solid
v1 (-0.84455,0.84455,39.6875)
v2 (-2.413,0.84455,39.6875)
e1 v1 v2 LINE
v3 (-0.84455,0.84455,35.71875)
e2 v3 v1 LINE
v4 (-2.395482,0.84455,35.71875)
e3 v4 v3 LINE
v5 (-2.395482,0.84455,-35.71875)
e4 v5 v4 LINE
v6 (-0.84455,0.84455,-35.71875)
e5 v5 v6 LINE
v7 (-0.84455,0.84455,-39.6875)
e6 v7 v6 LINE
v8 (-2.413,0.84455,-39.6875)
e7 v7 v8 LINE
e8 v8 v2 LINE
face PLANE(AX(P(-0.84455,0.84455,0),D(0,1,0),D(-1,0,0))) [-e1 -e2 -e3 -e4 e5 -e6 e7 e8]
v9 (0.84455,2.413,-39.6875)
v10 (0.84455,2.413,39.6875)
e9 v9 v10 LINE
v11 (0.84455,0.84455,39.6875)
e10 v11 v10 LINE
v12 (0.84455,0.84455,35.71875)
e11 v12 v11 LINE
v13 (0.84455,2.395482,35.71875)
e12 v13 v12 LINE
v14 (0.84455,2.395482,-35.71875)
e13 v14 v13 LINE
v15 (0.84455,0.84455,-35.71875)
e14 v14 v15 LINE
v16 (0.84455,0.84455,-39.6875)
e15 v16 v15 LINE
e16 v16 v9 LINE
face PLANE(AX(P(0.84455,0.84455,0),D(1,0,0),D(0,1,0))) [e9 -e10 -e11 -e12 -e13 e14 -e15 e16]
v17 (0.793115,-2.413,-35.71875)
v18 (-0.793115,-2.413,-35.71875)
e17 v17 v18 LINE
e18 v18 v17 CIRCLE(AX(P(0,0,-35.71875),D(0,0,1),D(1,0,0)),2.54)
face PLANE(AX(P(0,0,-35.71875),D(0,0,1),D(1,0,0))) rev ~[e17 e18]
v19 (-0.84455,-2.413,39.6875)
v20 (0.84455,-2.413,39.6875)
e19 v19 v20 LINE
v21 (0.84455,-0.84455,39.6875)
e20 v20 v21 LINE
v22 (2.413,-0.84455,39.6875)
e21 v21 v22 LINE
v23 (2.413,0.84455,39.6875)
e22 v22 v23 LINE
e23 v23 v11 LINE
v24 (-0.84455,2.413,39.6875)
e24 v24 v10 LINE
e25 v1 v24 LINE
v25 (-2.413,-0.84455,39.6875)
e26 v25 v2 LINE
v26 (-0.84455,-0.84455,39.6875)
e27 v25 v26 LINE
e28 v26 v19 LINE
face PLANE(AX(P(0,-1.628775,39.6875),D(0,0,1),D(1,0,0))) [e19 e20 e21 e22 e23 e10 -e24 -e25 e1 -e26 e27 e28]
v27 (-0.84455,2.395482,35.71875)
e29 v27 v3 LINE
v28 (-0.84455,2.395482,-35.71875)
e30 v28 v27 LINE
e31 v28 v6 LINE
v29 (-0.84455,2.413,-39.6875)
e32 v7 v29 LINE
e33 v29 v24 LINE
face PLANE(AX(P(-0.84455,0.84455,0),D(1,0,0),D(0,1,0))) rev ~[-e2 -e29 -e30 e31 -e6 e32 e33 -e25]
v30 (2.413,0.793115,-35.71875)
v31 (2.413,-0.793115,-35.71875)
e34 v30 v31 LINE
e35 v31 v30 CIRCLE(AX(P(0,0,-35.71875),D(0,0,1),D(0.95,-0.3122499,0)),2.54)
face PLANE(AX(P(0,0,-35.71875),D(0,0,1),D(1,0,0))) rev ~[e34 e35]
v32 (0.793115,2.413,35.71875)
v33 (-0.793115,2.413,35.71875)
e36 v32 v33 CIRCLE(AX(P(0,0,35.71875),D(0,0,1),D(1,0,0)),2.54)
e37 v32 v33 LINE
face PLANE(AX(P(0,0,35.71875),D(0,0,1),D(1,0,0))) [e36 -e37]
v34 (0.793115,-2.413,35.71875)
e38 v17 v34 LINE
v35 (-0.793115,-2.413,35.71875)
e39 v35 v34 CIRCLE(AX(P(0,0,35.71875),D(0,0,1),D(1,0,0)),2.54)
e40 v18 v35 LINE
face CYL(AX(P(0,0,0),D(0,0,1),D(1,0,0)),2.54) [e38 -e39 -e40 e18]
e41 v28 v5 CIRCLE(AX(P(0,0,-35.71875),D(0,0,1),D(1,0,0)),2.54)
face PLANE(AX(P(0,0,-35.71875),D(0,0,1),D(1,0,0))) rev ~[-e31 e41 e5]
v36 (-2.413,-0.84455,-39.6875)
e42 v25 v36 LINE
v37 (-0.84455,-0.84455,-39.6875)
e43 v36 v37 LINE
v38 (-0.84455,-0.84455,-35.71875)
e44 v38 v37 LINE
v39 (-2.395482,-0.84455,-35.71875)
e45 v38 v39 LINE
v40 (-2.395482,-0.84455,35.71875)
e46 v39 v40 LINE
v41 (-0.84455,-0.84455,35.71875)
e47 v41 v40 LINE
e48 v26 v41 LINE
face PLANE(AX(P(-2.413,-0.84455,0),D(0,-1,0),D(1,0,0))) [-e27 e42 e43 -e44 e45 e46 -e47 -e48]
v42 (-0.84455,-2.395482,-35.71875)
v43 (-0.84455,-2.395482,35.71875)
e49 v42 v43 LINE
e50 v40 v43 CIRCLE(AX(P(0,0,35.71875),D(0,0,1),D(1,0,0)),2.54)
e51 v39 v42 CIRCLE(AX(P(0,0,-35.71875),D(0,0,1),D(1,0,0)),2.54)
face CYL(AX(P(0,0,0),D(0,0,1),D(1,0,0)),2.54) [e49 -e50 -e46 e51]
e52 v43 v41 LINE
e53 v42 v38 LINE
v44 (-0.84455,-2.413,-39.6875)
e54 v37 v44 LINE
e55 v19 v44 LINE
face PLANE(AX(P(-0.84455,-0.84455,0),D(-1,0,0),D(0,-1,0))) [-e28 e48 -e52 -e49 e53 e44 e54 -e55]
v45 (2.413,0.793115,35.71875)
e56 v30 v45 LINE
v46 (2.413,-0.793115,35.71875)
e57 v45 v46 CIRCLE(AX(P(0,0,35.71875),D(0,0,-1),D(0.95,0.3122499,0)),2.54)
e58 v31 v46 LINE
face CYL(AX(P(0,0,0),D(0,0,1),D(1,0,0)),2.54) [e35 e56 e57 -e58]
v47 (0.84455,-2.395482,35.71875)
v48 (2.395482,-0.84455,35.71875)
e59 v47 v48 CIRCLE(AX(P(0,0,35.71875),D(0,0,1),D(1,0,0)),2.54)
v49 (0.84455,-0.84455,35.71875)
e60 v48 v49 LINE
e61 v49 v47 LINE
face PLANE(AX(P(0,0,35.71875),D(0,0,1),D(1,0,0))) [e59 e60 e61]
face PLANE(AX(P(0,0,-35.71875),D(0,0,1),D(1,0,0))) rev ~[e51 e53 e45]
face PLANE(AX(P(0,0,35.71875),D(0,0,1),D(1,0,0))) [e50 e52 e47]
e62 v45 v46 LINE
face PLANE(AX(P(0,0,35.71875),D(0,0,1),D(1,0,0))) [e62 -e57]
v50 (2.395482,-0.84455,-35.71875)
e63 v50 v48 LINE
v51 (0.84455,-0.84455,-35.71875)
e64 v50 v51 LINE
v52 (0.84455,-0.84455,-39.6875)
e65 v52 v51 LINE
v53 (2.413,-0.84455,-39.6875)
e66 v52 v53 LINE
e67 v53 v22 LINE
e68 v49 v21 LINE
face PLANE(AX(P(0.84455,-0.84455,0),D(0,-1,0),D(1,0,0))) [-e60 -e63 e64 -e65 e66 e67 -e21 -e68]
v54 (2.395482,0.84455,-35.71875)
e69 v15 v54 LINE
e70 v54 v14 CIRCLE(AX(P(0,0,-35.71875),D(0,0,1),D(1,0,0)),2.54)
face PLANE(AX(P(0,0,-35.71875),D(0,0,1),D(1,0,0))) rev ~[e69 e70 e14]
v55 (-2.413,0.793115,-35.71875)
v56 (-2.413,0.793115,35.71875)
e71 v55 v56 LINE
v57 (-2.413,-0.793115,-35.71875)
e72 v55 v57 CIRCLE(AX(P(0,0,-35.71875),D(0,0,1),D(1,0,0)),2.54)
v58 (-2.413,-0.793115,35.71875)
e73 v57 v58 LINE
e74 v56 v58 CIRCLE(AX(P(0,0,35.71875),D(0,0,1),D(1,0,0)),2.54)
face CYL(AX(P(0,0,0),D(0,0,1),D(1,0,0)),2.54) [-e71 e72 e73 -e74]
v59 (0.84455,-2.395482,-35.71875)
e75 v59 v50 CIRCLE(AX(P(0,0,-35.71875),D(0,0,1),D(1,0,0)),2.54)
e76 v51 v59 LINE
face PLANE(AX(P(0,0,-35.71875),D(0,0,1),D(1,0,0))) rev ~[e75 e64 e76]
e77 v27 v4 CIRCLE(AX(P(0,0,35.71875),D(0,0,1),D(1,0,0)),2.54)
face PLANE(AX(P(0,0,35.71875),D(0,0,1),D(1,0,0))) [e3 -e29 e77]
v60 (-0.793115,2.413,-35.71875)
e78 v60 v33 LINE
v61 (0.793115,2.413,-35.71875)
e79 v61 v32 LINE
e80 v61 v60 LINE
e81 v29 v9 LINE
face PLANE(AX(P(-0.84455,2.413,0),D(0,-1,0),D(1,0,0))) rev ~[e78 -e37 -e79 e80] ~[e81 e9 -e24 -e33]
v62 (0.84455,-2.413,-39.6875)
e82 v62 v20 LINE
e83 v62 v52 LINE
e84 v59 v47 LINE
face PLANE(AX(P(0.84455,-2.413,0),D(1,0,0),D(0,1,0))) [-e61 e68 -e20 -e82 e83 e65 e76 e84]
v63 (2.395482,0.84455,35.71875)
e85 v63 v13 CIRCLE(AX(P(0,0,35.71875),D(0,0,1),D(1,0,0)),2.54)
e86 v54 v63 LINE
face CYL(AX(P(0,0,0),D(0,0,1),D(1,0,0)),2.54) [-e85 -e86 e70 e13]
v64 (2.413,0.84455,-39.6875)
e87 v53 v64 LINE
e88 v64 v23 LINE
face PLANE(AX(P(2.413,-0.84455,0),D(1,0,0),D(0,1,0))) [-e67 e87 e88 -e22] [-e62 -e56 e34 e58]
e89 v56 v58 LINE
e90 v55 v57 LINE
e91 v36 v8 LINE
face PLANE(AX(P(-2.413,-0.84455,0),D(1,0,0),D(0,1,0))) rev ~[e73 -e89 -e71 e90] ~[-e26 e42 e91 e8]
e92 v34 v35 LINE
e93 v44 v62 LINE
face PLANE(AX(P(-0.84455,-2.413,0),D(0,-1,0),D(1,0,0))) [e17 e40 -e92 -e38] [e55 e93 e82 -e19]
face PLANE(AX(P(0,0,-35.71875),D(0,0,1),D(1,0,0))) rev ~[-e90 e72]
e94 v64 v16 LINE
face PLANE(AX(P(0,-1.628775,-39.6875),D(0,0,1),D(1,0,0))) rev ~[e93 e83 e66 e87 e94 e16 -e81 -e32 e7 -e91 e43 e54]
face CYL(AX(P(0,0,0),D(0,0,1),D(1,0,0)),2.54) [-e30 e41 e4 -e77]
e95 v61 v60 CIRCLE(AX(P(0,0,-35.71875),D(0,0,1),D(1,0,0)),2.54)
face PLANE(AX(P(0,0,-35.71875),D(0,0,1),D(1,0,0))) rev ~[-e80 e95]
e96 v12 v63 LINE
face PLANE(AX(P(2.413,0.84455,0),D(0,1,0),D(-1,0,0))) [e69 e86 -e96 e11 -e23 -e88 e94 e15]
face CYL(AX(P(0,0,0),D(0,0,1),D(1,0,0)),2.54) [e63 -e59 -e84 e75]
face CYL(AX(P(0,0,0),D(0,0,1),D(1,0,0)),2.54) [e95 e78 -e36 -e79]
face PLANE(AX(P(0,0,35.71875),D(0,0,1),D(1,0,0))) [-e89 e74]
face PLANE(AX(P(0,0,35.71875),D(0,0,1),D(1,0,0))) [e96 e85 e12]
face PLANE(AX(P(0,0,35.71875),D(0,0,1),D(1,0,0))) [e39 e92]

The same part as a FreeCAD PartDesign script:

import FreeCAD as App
import Part
import Sketcher
from FreeCAD import Vector
Q = App.Units.Quantity

doc = App.newDocument("Part")
body = doc.addObject("PartDesign::Body", "Body")

sketch1 = body.newObject("Sketcher::SketchObject", "Sketch")
sketch1.AttachmentSupport = (doc.getObject("XY_Plane"), [""])
sketch1.MapMode = "FlatFace"
sketch1.addGeometry([
    Part.LineSegment(Vector(-0.84455, -2.413, 0), Vector(0.84455, -2.413, 0)),
    Part.LineSegment(Vector(0.84455, -2.413, 0), Vector(0.84455, -0.84455, 0)),
    Part.LineSegment(Vector(0.84455, -0.84455, 0), Vector(2.413, -0.84455, 0)),
    Part.LineSegment(Vector(2.413, -0.84455, 0), Vector(2.413, 0.84455, 0)),
    Part.LineSegment(Vector(2.413, 0.84455, 0), Vector(0.84455, 0.84455, 0)),
    Part.LineSegment(Vector(0.84455, 0.84455, 0), Vector(0.84455, 2.413, 0)),
    Part.LineSegment(Vector(0.84455, 2.413, 0), Vector(-0.84455, 2.413, 0)),
    Part.LineSegment(Vector(-0.84455, 2.413, 0), Vector(-0.84455, 0.84455, 0)),
    Part.LineSegment(Vector(-0.84455, 0.84455, 0), Vector(-2.413, 0.84455, 0)),
    Part.LineSegment(Vector(-2.413, 0.84455, 0), Vector(-2.413, -0.84455, 0)),
    Part.LineSegment(Vector(-2.413, -0.84455, 0), Vector(-0.84455, -0.84455, 0)),
    Part.LineSegment(Vector(-0.84455, -0.84455, 0), Vector(-0.84455, -2.413, 0)),
], False)
sketch1.addConstraint([
    Sketcher.Constraint("Coincident", 0, 2, 1, 1),
    Sketcher.Constraint("Coincident", 1, 2, 2, 1),
    Sketcher.Constraint("Coincident", 2, 2, 3, 1),
    Sketcher.Constraint("Coincident", 3, 2, 4, 1),
    Sketcher.Constraint("Coincident", 4, 2, 5, 1),
    Sketcher.Constraint("Coincident", 5, 2, 6, 1),
    Sketcher.Constraint("Coincident", 6, 2, 7, 1),
    Sketcher.Constraint("Coincident", 7, 2, 8, 1),
    Sketcher.Constraint("Coincident", 8, 2, 9, 1),
    Sketcher.Constraint("Coincident", 9, 2, 10, 1),
    Sketcher.Constraint("Coincident", 10, 2, 11, 1),
    Sketcher.Constraint("Coincident", 11, 2, 0, 1),
    Sketcher.Constraint("Horizontal", 0),
    Sketcher.Constraint("Vertical", 1),
    Sketcher.Constraint("Horizontal", 2),
    Sketcher.Constraint("Vertical", 3),
    Sketcher.Constraint("Horizontal", 4),
    Sketcher.Constraint("Vertical", 5),
    Sketcher.Constraint("Horizontal", 6),
    Sketcher.Constraint("Vertical", 7),
    Sketcher.Constraint("Horizontal", 8),
    Sketcher.Constraint("Vertical", 9),
    Sketcher.Constraint("Horizontal", 10),
    Sketcher.Constraint("Vertical", 11),
    Sketcher.Constraint("Symmetric", 0, 2, 6, 2, -1, 1),
    Sketcher.Constraint("Symmetric", 2, 2, 8, 2, -1, 1),
    Sketcher.Constraint("Symmetric", 4, 2, 10, 2, -1, 1),
    Sketcher.Constraint("Symmetric", 4, 2, 7, 2, -2),
    Sketcher.Constraint("Equal", 10, 1),
    Sketcher.Constraint("Equal", 6, 3),
    Sketcher.Constraint("DistanceY", 0, 2, 5, 2, Q("0.19 in")),
    Sketcher.Constraint("DistanceX", 0, 1, 0, 2, Q("0.0665 in")),
])
pad1 = body.newObject("PartDesign::Pad", "Pad")
pad1.Profile = sketch1
pad1.Length = Q("3.125 in")
pad1.Midplane = True

sketch2 = body.newObject("Sketcher::SketchObject", "Sketch001")
sketch2.AttachmentSupport = (doc.getObject("XY_Plane"), [""])
sketch2.MapMode = "FlatFace"
sketch2.addGeometry(Part.Circle(Vector(0, 0, 0), Vector(0, 0, 1), 2.54), False)
sketch2.addConstraint([
    Sketcher.Constraint("Coincident", 0, 3, -1, 1),
    Sketcher.Constraint("Diameter", 0, Q("0.2 in")),
])
pad2 = body.newObject("PartDesign::Pad", "Pad001")
pad2.Profile = sketch2
pad2.Length = Q("2.8125 in")
pad2.Midplane = True

doc.recompute()
